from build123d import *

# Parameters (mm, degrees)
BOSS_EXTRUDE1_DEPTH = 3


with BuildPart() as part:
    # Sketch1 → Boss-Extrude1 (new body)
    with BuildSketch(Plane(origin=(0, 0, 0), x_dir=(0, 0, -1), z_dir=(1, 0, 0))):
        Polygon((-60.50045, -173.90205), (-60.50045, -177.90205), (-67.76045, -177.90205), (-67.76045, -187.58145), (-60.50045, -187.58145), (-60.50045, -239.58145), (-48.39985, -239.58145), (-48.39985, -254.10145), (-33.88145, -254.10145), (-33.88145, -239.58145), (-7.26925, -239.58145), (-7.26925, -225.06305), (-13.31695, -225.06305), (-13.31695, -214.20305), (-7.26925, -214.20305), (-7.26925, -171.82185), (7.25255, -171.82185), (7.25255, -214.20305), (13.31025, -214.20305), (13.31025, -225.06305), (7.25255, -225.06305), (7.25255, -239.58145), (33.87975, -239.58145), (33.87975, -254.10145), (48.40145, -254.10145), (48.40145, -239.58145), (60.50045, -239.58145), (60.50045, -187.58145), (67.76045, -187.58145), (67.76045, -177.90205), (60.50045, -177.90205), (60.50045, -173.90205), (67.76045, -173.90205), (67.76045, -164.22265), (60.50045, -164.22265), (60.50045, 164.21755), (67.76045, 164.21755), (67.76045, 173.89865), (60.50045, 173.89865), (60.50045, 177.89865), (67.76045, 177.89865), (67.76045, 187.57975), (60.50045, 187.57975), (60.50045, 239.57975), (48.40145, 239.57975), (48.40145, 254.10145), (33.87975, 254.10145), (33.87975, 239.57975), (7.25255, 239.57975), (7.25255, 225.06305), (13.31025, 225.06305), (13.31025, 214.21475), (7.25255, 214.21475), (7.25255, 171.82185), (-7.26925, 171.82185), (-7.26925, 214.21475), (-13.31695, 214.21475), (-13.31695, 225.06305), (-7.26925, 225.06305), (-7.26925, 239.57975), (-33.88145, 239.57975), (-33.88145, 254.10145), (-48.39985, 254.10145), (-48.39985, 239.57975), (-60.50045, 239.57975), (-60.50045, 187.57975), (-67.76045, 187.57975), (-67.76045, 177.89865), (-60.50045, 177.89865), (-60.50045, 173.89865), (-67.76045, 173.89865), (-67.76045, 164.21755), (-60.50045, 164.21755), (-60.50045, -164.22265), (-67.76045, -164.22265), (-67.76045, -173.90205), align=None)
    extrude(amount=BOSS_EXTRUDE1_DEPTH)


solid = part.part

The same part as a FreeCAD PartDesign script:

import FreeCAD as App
import Part
import Sketcher


def add_polygon(sketch, points):
    """Adds a closed chain of lines whose ends are joined by coincident constraints."""
    first, n = sketch.GeometryCount, len(points)
    for a, b in zip(points, points[1:] + points[:1]):
        sketch.addGeometry(Part.LineSegment(App.Vector(*a, 0), App.Vector(*b, 0)), False)
    for i in range(n):
        sketch.addConstraint(Sketcher.Constraint("Coincident", first + i, 2, first + (i + 1) % n, 1))

doc = App.newDocument("Part")
body = doc.addObject("PartDesign::Body", "Body")

sketch1 = body.newObject("Sketcher::SketchObject", "Sketch")
sketch1.AttachmentSupport = (doc.getObject("YZ_Plane"), [""])
sketch1.MapMode = "FlatFace"
add_polygon(sketch1, [(-173.9, 60.5), (-177.9, 60.5), (-177.9, 67.8), (-187.6, 67.8), (-187.6, 60.5), (-239.6, 60.5), (-239.6, 48.4), (-254.1, 48.4), (-254.1, 33.9), (-239.6, 33.9), (-239.6, 7.3), (-225.1, 7.3), (-225.1, 13.3), (-214.2, 13.3), (-214.2, 7.3), (-171.8, 7.3), (-171.8, -7.3), (-214.2, -7.3), (-214.2, -13.3), (-225.1, -13.3), (-225.1, -7.3), (-239.6, -7.3), (-239.6, -33.9), (-254.1, -33.9), (-254.1, -48.4), (-239.6, -48.4), (-239.6, -60.5), (-187.6, -60.5), (-187.6, -67.8), (-177.9, -67.8), (-177.9, -60.5), (-173.9, -60.5), (-173.9, -67.8), (-164.2, -67.8), (-164.2, -60.5), (164.2, -60.5), (164.2, -67.8), (173.9, -67.8), (173.9, -60.5), (177.9, -60.5), (177.9, -67.8), (187.6, -67.8), (187.6, -60.5), (239.6, -60.5), (239.6, -48.4), (254.1, -48.4), (254.1, -33.9), (239.6, -33.9), (239.6, -7.3), (225.1, -7.3), (225.1, -13.3), (214.2, -13.3), (214.2, -7.3), (171.8, -7.3), (171.8, 7.3), (214.2, 7.3), (214.2, 13.3), (225.1, 13.3), (225.1, 7.3), (239.6, 7.3), (239.6, 33.9), (254.1, 33.9), (254.1, 48.4), (239.6, 48.4), (239.6, 60.5), (187.6, 60.5), (187.6, 67.8), (177.9, 67.8), (177.9, 60.5), (173.9, 60.5), (173.9, 67.8), (164.2, 67.8), (164.2, 60.5), (-164.2, 60.5), (-164.2, 67.8), (-173.9, 67.8)])
sketch1.addConstraint([
    Sketcher.Constraint("Horizontal", 0),
    Sketcher.Constraint("Vertical", 1),
    Sketcher.Constraint("Horizontal", 2),
    Sketcher.Constraint("Vertical", 3),
    Sketcher.Constraint("Horizontal", 4),
    Sketcher.Constraint("Vertical", 5),
    Sketcher.Constraint("Horizontal", 6),
    Sketcher.Constraint("Vertical", 7),
    Sketcher.Constraint("Horizontal", 8),
    Sketcher.Constraint("Vertical", 9),
    Sketcher.Constraint("Horizontal", 10),
    Sketcher.Constraint("Vertical", 11),
    Sketcher.Constraint("Horizontal", 12),
    Sketcher.Constraint("Vertical", 13),
    Sketcher.Constraint("Horizontal", 14),
    Sketcher.Constraint("Vertical", 15),
    Sketcher.Constraint("Horizontal", 16),
    Sketcher.Constraint("Vertical", 17),
    Sketcher.Constraint("Horizontal", 18),
    Sketcher.Constraint("Vertical", 19),
    Sketcher.Constraint("Horizontal", 20),
    Sketcher.Constraint("Vertical", 21),
    Sketcher.Constraint("Horizontal", 22),
    Sketcher.Constraint("Vertical", 23),
    Sketcher.Constraint("Horizontal", 24),
    Sketcher.Constraint("Vertical", 25),
    Sketcher.Constraint("Horizontal", 26),
    Sketcher.Constraint("Vertical", 27),
    Sketcher.Constraint("Horizontal", 28),
    Sketcher.Constraint("Vertical", 29),
    Sketcher.Constraint("Horizontal", 30),
    Sketcher.Constraint("Vertical", 31),
    Sketcher.Constraint("Horizontal", 32),
    Sketcher.Constraint("Vertical", 33),
    Sketcher.Constraint("Horizontal", 34),
    Sketcher.Constraint("Vertical", 35),
    Sketcher.Constraint("Horizontal", 36),
    Sketcher.Constraint("Vertical", 37),
    Sketcher.Constraint("Horizontal", 38),
    Sketcher.Constraint("Vertical", 39),
    Sketcher.Constraint("Horizontal", 40),
    Sketcher.Constraint("Vertical", 41),
    Sketcher.Constraint("Horizontal", 42),
    Sketcher.Constraint("Vertical", 43),
    Sketcher.Constraint("Horizontal", 44),
    Sketcher.Constraint("Vertical", 45),
    Sketcher.Constraint("Horizontal", 46),
    Sketcher.Constraint("Vertical", 47),
    Sketcher.Constraint("Horizontal", 48),
    Sketcher.Constraint("Vertical", 49),
    Sketcher.Constraint("Horizontal", 50),
    Sketcher.Constraint("Vertical", 51),
    Sketcher.Constraint("Horizontal", 52),
    Sketcher.Constraint("Vertical", 53),
    Sketcher.Constraint("Horizontal", 54),
    Sketcher.Constraint("Vertical", 55),
    Sketcher.Constraint("Horizontal", 56),
    Sketcher.Constraint("Vertical", 57),
    Sketcher.Constraint("Horizontal", 58),
    Sketcher.Constraint("Vertical", 59),
    Sketcher.Constraint("Horizontal", 60),
    Sketcher.Constraint("Vertical", 61),
    Sketcher.Constraint("Horizontal", 62),
    Sketcher.Constraint("Vertical", 63),
    Sketcher.Constraint("Horizontal", 64),
    Sketcher.Constraint("Vertical", 65),
    Sketcher.Constraint("Horizontal", 66),
    Sketcher.Constraint("Vertical", 67),
    Sketcher.Constraint("Horizontal", 68),
    Sketcher.Constraint("Vertical", 69),
    Sketcher.Constraint("Horizontal", 70),
    Sketcher.Constraint("Vertical", 71),
    Sketcher.Constraint("Horizontal", 72),
    Sketcher.Constraint("Vertical", 73),
    Sketcher.Constraint("Horizontal", 74),
    Sketcher.Constraint("Vertical", 75),
    Sketcher.Constraint("Symmetric", 23, 2, 44, 2, -2),
    Sketcher.Constraint("Symmetric", 19, 2, 48, 2, -2),
    Sketcher.Constraint("Symmetric", 15, 2, 52, 2, -2),
    Sketcher.Constraint("Symmetric", 11, 2, 56, 2, -2),
    Sketcher.Constraint("Symmetric", 7, 2, 60, 2, -2),
    Sketcher.Constraint("Symmetric", 4, 2, 25, 2, -1),
    Sketcher.Constraint("Symmetric", 2, 2, 27, 2, -1),
    Sketcher.Constraint("Symmetric", 0, 2, 29, 2, -1),
    Sketcher.Constraint("Symmetric", 42, 2, 63, 2, -1),
    Sketcher.Constraint("Symmetric", 40, 2, 65, 2, -1),
    Sketcher.Constraint("Symmetric", 38, 2, 67, 2, -1),
    Sketcher.Constraint("Symmetric", 36, 2, 69, 2, -1),
    Sketcher.Constraint("Symmetric", 34, 2, 71, 2, -1),
    Sketcher.Constraint("Symmetric", 32, 2, 73, 2, -1),
    Sketcher.Constraint("Horizontal", 0, 2, 3, 2),
    Sketcher.Constraint("Horizontal", 10, 2, 13, 2),
    Sketcher.Constraint("Horizontal", 16, 2, 19, 2),
    Sketcher.Constraint("Horizontal", 28, 2, 31, 2),
    Sketcher.Constraint("Horizontal", 30, 2, 33, 2),
    Sketcher.Constraint("Horizontal", 32, 2, 35, 2),
    Sketcher.Constraint("Horizontal", 34, 2, 37, 2),
    Sketcher.Constraint("Horizontal", 36, 2, 39, 2),
    Sketcher.Constraint("Horizontal", 38, 2, 41, 2),
    Sketcher.Constraint("Horizontal", 22, 2, 45, 2),
    Sketcher.Constraint("Horizontal", 18, 2, 49, 2),
    Sketcher.Constraint("Horizontal", 14, 2, 53, 2),
    Sketcher.Constraint("Horizontal", 54, 2, 57, 2),
    Sketcher.Constraint("Horizontal", 6, 2, 61, 2),
    Sketcher.Constraint("Vertical", 5, 2, 8, 2),
    Sketcher.Constraint("Vertical", 13, 2, 16, 2),
    Sketcher.Constraint("Vertical", 11, 2, 18, 2),
    Sketcher.Constraint("Vertical", 9, 2, 20, 2),
    Sketcher.Constraint("Vertical", 7, 2, 22, 2),
    Sketcher.Constraint("Vertical", 43, 2, 46, 2),
    Sketcher.Constraint("Vertical", 51, 2, 54, 2),
    Sketcher.Constraint("Vertical", 47, 2, 58, 2),
    Sketcher.Constraint("Vertical", 31, 2, 74, 2),
    Sketcher.Constraint("Equal", 28, 32),
    Sketcher.Constraint("Equal", 30, 38),
    Sketcher.Constraint("Equal", 36, 40),
    Sketcher.Constraint("Equal", 26, 42),
    Sketcher.Constraint("Equal", 20, 7),
    Sketcher.Constraint("Equal", 62, 23),
    Sketcher.Constraint("DistanceX", 0, 2, 0, 1, 4.0),
    Sketcher.Constraint("DistanceX", 4, 2, 4, 1, 52.0),
    Sketcher.Constraint("DistanceX", 6, 2, 6, 1, 14.52),
    Sketcher.Constraint("DistanceX", 12, 1, 12, 2, 10.86),
    Sketcher.Constraint("DistanceY", 1, 1, 1, 2, 7.26),
    Sketcher.Constraint("DistanceY", 25, 2, 25, 1, 12.099),
    Sketcher.Constraint("DistanceX", 2, 2, 2, 1, 9.6794),
    Sketcher.Constraint("DistanceX", 10, 1, 10, 2, 14.5184),
    Sketcher.Constraint("DistanceX", 14, 1, 14, 2, 42.3812),
    Sketcher.Constraint("DistanceX", 34, 1, 34, 2, 328.4402),
    Sketcher.Constraint("DistanceX", 36, 1, 36, 2, 9.6811),
    Sketcher.Constraint("DistanceX", 44, 1, 44, 2, 14.5217),
    Sketcher.Constraint("DistanceX", 50, 2, 50, 1, 10.8483),
    Sketcher.Constraint("DistanceY", 5, 2, 5, 1, 12.1006),
    Sketcher.Constraint("DistanceY", 9, 2, 9, 1, 26.6122),
    Sketcher.Constraint("DistanceY", 11, 1, 11, 2, 6.0477),
    Sketcher.Constraint("DistanceY", 15, 2, 15, 1, 14.5218),
    Sketcher.Constraint("DistanceY", 17, 2, 17, 1, 6.0577),
    Sketcher.Constraint("DistanceY", 21, 2, 21, 1, 26.6272),
])
pad1 = body.newObject("PartDesign::Pad", "Pad")
pad1.Profile = sketch1
pad1.Length = 3

doc.recompute()
